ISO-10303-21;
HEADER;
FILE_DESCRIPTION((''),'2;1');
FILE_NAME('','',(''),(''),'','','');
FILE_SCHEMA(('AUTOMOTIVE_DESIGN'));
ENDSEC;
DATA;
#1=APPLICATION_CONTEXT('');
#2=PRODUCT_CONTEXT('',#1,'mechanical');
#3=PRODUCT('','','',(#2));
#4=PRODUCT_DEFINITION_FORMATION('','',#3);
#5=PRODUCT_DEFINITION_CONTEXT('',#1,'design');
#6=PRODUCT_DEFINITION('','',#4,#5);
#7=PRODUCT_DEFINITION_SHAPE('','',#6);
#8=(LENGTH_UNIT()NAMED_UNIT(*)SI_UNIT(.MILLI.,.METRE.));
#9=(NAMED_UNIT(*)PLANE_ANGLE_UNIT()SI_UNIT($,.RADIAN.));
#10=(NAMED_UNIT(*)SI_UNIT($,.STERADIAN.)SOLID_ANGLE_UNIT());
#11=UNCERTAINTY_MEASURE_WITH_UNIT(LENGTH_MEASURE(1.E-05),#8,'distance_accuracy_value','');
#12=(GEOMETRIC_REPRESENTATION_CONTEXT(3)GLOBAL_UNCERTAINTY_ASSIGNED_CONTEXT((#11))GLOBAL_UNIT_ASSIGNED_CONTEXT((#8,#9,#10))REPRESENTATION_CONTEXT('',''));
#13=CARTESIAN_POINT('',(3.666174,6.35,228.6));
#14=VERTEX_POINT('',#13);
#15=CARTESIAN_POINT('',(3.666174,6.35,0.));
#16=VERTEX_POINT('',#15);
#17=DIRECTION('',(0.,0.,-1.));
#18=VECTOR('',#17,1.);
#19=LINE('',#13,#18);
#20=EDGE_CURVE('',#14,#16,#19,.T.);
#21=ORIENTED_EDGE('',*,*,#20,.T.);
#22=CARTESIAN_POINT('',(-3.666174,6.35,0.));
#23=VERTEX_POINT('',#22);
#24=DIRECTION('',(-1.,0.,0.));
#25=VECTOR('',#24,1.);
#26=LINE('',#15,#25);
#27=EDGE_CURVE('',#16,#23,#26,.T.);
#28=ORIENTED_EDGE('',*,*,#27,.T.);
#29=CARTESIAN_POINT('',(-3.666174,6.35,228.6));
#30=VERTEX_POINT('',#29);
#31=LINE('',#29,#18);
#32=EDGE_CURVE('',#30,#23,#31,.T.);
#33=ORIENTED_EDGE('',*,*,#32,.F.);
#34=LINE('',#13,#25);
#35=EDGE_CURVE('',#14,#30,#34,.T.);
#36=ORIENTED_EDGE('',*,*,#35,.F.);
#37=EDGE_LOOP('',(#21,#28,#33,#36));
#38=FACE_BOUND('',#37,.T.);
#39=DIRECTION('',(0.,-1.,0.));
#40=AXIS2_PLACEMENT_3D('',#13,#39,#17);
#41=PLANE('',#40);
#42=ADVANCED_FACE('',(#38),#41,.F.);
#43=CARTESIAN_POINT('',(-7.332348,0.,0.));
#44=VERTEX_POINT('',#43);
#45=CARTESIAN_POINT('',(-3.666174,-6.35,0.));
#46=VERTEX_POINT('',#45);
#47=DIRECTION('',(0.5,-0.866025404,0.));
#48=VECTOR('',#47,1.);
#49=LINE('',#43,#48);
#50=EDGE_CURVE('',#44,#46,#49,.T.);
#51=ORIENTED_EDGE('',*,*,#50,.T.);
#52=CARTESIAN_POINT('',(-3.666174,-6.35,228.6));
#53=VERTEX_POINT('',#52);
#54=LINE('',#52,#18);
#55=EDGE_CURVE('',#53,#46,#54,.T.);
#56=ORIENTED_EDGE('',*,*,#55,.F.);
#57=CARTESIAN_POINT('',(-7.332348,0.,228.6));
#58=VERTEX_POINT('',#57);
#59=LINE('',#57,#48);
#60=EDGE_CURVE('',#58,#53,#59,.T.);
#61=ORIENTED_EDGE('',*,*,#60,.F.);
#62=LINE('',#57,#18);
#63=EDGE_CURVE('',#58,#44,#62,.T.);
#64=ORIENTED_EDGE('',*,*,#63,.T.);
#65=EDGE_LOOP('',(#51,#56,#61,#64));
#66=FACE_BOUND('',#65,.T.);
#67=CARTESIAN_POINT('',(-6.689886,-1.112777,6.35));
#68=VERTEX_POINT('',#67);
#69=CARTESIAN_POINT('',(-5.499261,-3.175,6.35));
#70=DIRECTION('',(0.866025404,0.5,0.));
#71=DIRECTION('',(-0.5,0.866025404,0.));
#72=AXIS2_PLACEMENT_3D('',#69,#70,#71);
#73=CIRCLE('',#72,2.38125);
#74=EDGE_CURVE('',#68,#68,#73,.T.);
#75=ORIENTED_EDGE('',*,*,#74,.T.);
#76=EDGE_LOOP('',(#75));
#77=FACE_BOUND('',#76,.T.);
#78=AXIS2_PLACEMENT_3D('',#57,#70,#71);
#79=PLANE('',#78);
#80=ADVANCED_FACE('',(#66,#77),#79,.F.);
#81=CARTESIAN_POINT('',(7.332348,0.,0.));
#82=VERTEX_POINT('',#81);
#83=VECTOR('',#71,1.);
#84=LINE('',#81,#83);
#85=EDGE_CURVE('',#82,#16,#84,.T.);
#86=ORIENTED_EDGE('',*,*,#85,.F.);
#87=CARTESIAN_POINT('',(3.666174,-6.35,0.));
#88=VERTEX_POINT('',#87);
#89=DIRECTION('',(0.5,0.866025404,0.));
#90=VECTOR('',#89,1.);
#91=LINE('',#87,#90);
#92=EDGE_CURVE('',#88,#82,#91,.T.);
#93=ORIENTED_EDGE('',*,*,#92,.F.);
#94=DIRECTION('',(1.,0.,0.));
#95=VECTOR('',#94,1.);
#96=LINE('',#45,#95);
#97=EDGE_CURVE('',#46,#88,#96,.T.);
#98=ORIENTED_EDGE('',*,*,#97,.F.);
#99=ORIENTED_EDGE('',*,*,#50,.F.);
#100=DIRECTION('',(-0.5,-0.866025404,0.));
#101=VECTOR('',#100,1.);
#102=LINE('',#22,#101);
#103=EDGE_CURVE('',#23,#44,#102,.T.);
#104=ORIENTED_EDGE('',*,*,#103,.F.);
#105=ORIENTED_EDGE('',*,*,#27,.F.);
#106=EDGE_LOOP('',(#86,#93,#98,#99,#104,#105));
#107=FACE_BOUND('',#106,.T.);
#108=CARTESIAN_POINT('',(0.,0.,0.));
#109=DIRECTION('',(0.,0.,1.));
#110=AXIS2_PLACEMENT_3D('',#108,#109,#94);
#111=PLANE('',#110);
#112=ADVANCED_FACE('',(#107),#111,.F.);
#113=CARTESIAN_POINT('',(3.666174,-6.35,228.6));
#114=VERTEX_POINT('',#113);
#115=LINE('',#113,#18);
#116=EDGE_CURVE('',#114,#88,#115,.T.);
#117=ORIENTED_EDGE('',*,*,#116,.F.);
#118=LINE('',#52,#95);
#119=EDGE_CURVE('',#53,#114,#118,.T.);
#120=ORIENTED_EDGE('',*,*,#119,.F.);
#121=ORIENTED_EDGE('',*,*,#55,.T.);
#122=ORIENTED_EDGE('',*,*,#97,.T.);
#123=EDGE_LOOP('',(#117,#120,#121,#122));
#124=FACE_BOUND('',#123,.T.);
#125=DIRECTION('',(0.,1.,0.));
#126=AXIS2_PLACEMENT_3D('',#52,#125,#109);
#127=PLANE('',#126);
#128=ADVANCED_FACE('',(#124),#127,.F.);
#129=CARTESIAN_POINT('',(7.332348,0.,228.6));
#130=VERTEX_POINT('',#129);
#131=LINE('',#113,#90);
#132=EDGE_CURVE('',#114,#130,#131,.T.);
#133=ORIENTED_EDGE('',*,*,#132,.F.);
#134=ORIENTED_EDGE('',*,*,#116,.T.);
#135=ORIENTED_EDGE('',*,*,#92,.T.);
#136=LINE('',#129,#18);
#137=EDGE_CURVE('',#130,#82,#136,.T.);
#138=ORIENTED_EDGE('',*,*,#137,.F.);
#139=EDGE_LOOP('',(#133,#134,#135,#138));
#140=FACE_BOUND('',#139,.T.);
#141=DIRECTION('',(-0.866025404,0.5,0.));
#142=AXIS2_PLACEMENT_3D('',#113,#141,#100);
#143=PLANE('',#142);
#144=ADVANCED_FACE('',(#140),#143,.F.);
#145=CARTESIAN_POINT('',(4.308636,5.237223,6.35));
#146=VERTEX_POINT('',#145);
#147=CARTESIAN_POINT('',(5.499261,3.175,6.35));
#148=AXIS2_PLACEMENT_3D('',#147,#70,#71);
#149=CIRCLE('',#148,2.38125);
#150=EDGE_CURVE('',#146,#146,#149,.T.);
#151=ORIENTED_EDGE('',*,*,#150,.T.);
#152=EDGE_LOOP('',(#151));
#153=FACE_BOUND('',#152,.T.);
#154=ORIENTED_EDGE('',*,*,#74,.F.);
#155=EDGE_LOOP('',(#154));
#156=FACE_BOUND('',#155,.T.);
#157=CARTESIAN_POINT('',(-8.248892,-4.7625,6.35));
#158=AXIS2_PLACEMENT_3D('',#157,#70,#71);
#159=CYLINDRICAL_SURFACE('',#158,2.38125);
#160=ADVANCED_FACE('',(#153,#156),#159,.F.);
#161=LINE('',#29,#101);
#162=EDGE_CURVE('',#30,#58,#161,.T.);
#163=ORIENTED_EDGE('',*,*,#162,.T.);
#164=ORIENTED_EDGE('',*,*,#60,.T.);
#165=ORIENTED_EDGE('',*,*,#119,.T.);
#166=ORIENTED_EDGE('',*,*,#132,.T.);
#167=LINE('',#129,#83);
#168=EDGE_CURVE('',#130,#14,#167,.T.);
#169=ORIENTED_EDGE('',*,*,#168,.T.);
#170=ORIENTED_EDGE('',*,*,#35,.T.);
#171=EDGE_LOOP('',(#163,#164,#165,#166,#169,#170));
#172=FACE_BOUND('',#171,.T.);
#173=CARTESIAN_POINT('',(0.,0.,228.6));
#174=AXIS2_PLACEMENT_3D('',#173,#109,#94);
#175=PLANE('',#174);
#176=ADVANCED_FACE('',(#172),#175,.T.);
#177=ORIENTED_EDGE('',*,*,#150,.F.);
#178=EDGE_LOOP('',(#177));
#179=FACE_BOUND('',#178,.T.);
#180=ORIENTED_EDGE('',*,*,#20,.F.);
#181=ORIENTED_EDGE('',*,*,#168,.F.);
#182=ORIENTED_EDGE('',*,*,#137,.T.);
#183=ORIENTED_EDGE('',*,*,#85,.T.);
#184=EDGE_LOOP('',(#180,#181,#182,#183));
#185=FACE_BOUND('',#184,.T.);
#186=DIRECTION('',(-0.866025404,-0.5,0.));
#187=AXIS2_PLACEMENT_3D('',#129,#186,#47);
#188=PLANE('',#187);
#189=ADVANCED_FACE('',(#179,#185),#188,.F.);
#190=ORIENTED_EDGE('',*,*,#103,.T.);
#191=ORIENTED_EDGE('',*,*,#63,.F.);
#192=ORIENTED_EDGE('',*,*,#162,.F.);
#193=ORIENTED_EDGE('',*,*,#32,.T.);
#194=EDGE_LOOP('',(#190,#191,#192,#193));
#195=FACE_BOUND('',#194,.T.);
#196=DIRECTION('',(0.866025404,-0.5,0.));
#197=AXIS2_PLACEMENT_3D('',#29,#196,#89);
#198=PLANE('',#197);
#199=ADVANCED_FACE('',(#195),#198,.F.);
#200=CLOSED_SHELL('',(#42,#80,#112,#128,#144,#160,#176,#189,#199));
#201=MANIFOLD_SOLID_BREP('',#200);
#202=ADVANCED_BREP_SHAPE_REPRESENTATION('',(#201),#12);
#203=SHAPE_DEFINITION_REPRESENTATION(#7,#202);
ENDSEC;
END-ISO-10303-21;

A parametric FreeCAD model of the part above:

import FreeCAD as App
import Part
import Sketcher
from FreeCAD import Vector
Q = App.Units.Quantity

doc = App.newDocument("Part")
params = doc.addObject("Spreadsheet::Sheet", "Params")
for row, (alias, value) in enumerate([
    ("pad1_length", "9 in"),
    ("sketch2_diameter", "0.1875 in"),
], start=1):
    params.set(f"A{row}", alias)
    params.set(f"B{row}", "=" + value)
    params.setAlias(f"B{row}", alias)

body = doc.addObject("PartDesign::Body", "Body")

# Sketch on XY plane
sketch1 = body.newObject("Sketcher::SketchObject", "Sketch")
sketch1.AttachmentSupport = (doc.getObject("XY_Plane"), [""])
sketch1.MapMode = "FlatFace"
sketch1.addGeometry([
    Part.LineSegment(Vector(-4, -6, 0), Vector(4, -6, 0)),  # 0
    Part.LineSegment(Vector(4, -6, 0), Vector(7, 0, 0)),  # 1
    Part.LineSegment(Vector(7, 0, 0), Vector(4, 6, 0)),  # 2
    Part.LineSegment(Vector(4, 6, 0), Vector(-4, 6, 0)),  # 3
    Part.LineSegment(Vector(-4, 6, 0), Vector(-7, 0, 0)),  # 4
    Part.LineSegment(Vector(-7, 0, 0), Vector(-4, -6, 0)),  # 5
], False)
sketch1.addConstraint([
    Sketcher.Constraint("Coincident", 0, 2, 1, 1),
    Sketcher.Constraint("Coincident", 1, 2, 2, 1),
    Sketcher.Constraint("Coincident", 2, 2, 3, 1),
    Sketcher.Constraint("Coincident", 3, 2, 4, 1),
    Sketcher.Constraint("Coincident", 4, 2, 5, 1),
    Sketcher.Constraint("Coincident", 5, 2, 0, 1),
    Sketcher.Constraint("Horizontal", 0),
    Sketcher.Constraint("Horizontal", 3),
    Sketcher.Constraint("Symmetric", 0, 2, 3, 2, -1, 1),
    Sketcher.Constraint("Symmetric", 1, 2, 4, 2, -1, 1),
    Sketcher.Constraint("PointOnObject", 1, 2, -1),
    Sketcher.Constraint("Parallel", 2, 5),
    Sketcher.Constraint("Vertical", 0, 2, 2, 2),
    Sketcher.Constraint("Angle", 1, Q("60 deg")),
    Sketcher.Constraint("DistanceY", 0, 2, 2, 2, Q("0.5 in")),
    Sketcher.Constraint("DistanceX", 0, 1, 0, 2, Q("7.332348 mm")),
])
pad1 = body.newObject("PartDesign::Pad", "Pad")
pad1.Profile = sketch1
pad1.setExpression("Length", "Params.pad1_length")

# Sketch on an angled plane
sketch2 = body.newObject("Sketcher::SketchObject", "Sketch001")
sketch2.Placement = App.Placement(Vector(5.499261, 3.175, 0), App.Rotation(Vector(0, 0, -1), Vector(-0.5, 0.866025404, 0), Vector(0.866025404, 0.5, 0), "ZXY"))
sketch2.addGeometry(Part.Circle(Vector(-6.3, 0, 0), Vector(0, 0, 1), 2.4), False)
sketch2.addConstraint([
    Sketcher.Constraint("PointOnObject", 0, 3, -1),
    Sketcher.Constraint("Diameter", 0, Q("0.1875 in")),
    Sketcher.Constraint("DistanceX", 0, 3, -1, 1, Q("0.25 in")),
])
sketch2.setExpression("Constraints[1]", "Params.sketch2_diameter")
pocket1 = body.newObject("PartDesign::Pocket", "Pocket")
pocket1.Profile = sketch2
pocket1.Type = "ThroughAll"

doc.recompute()
